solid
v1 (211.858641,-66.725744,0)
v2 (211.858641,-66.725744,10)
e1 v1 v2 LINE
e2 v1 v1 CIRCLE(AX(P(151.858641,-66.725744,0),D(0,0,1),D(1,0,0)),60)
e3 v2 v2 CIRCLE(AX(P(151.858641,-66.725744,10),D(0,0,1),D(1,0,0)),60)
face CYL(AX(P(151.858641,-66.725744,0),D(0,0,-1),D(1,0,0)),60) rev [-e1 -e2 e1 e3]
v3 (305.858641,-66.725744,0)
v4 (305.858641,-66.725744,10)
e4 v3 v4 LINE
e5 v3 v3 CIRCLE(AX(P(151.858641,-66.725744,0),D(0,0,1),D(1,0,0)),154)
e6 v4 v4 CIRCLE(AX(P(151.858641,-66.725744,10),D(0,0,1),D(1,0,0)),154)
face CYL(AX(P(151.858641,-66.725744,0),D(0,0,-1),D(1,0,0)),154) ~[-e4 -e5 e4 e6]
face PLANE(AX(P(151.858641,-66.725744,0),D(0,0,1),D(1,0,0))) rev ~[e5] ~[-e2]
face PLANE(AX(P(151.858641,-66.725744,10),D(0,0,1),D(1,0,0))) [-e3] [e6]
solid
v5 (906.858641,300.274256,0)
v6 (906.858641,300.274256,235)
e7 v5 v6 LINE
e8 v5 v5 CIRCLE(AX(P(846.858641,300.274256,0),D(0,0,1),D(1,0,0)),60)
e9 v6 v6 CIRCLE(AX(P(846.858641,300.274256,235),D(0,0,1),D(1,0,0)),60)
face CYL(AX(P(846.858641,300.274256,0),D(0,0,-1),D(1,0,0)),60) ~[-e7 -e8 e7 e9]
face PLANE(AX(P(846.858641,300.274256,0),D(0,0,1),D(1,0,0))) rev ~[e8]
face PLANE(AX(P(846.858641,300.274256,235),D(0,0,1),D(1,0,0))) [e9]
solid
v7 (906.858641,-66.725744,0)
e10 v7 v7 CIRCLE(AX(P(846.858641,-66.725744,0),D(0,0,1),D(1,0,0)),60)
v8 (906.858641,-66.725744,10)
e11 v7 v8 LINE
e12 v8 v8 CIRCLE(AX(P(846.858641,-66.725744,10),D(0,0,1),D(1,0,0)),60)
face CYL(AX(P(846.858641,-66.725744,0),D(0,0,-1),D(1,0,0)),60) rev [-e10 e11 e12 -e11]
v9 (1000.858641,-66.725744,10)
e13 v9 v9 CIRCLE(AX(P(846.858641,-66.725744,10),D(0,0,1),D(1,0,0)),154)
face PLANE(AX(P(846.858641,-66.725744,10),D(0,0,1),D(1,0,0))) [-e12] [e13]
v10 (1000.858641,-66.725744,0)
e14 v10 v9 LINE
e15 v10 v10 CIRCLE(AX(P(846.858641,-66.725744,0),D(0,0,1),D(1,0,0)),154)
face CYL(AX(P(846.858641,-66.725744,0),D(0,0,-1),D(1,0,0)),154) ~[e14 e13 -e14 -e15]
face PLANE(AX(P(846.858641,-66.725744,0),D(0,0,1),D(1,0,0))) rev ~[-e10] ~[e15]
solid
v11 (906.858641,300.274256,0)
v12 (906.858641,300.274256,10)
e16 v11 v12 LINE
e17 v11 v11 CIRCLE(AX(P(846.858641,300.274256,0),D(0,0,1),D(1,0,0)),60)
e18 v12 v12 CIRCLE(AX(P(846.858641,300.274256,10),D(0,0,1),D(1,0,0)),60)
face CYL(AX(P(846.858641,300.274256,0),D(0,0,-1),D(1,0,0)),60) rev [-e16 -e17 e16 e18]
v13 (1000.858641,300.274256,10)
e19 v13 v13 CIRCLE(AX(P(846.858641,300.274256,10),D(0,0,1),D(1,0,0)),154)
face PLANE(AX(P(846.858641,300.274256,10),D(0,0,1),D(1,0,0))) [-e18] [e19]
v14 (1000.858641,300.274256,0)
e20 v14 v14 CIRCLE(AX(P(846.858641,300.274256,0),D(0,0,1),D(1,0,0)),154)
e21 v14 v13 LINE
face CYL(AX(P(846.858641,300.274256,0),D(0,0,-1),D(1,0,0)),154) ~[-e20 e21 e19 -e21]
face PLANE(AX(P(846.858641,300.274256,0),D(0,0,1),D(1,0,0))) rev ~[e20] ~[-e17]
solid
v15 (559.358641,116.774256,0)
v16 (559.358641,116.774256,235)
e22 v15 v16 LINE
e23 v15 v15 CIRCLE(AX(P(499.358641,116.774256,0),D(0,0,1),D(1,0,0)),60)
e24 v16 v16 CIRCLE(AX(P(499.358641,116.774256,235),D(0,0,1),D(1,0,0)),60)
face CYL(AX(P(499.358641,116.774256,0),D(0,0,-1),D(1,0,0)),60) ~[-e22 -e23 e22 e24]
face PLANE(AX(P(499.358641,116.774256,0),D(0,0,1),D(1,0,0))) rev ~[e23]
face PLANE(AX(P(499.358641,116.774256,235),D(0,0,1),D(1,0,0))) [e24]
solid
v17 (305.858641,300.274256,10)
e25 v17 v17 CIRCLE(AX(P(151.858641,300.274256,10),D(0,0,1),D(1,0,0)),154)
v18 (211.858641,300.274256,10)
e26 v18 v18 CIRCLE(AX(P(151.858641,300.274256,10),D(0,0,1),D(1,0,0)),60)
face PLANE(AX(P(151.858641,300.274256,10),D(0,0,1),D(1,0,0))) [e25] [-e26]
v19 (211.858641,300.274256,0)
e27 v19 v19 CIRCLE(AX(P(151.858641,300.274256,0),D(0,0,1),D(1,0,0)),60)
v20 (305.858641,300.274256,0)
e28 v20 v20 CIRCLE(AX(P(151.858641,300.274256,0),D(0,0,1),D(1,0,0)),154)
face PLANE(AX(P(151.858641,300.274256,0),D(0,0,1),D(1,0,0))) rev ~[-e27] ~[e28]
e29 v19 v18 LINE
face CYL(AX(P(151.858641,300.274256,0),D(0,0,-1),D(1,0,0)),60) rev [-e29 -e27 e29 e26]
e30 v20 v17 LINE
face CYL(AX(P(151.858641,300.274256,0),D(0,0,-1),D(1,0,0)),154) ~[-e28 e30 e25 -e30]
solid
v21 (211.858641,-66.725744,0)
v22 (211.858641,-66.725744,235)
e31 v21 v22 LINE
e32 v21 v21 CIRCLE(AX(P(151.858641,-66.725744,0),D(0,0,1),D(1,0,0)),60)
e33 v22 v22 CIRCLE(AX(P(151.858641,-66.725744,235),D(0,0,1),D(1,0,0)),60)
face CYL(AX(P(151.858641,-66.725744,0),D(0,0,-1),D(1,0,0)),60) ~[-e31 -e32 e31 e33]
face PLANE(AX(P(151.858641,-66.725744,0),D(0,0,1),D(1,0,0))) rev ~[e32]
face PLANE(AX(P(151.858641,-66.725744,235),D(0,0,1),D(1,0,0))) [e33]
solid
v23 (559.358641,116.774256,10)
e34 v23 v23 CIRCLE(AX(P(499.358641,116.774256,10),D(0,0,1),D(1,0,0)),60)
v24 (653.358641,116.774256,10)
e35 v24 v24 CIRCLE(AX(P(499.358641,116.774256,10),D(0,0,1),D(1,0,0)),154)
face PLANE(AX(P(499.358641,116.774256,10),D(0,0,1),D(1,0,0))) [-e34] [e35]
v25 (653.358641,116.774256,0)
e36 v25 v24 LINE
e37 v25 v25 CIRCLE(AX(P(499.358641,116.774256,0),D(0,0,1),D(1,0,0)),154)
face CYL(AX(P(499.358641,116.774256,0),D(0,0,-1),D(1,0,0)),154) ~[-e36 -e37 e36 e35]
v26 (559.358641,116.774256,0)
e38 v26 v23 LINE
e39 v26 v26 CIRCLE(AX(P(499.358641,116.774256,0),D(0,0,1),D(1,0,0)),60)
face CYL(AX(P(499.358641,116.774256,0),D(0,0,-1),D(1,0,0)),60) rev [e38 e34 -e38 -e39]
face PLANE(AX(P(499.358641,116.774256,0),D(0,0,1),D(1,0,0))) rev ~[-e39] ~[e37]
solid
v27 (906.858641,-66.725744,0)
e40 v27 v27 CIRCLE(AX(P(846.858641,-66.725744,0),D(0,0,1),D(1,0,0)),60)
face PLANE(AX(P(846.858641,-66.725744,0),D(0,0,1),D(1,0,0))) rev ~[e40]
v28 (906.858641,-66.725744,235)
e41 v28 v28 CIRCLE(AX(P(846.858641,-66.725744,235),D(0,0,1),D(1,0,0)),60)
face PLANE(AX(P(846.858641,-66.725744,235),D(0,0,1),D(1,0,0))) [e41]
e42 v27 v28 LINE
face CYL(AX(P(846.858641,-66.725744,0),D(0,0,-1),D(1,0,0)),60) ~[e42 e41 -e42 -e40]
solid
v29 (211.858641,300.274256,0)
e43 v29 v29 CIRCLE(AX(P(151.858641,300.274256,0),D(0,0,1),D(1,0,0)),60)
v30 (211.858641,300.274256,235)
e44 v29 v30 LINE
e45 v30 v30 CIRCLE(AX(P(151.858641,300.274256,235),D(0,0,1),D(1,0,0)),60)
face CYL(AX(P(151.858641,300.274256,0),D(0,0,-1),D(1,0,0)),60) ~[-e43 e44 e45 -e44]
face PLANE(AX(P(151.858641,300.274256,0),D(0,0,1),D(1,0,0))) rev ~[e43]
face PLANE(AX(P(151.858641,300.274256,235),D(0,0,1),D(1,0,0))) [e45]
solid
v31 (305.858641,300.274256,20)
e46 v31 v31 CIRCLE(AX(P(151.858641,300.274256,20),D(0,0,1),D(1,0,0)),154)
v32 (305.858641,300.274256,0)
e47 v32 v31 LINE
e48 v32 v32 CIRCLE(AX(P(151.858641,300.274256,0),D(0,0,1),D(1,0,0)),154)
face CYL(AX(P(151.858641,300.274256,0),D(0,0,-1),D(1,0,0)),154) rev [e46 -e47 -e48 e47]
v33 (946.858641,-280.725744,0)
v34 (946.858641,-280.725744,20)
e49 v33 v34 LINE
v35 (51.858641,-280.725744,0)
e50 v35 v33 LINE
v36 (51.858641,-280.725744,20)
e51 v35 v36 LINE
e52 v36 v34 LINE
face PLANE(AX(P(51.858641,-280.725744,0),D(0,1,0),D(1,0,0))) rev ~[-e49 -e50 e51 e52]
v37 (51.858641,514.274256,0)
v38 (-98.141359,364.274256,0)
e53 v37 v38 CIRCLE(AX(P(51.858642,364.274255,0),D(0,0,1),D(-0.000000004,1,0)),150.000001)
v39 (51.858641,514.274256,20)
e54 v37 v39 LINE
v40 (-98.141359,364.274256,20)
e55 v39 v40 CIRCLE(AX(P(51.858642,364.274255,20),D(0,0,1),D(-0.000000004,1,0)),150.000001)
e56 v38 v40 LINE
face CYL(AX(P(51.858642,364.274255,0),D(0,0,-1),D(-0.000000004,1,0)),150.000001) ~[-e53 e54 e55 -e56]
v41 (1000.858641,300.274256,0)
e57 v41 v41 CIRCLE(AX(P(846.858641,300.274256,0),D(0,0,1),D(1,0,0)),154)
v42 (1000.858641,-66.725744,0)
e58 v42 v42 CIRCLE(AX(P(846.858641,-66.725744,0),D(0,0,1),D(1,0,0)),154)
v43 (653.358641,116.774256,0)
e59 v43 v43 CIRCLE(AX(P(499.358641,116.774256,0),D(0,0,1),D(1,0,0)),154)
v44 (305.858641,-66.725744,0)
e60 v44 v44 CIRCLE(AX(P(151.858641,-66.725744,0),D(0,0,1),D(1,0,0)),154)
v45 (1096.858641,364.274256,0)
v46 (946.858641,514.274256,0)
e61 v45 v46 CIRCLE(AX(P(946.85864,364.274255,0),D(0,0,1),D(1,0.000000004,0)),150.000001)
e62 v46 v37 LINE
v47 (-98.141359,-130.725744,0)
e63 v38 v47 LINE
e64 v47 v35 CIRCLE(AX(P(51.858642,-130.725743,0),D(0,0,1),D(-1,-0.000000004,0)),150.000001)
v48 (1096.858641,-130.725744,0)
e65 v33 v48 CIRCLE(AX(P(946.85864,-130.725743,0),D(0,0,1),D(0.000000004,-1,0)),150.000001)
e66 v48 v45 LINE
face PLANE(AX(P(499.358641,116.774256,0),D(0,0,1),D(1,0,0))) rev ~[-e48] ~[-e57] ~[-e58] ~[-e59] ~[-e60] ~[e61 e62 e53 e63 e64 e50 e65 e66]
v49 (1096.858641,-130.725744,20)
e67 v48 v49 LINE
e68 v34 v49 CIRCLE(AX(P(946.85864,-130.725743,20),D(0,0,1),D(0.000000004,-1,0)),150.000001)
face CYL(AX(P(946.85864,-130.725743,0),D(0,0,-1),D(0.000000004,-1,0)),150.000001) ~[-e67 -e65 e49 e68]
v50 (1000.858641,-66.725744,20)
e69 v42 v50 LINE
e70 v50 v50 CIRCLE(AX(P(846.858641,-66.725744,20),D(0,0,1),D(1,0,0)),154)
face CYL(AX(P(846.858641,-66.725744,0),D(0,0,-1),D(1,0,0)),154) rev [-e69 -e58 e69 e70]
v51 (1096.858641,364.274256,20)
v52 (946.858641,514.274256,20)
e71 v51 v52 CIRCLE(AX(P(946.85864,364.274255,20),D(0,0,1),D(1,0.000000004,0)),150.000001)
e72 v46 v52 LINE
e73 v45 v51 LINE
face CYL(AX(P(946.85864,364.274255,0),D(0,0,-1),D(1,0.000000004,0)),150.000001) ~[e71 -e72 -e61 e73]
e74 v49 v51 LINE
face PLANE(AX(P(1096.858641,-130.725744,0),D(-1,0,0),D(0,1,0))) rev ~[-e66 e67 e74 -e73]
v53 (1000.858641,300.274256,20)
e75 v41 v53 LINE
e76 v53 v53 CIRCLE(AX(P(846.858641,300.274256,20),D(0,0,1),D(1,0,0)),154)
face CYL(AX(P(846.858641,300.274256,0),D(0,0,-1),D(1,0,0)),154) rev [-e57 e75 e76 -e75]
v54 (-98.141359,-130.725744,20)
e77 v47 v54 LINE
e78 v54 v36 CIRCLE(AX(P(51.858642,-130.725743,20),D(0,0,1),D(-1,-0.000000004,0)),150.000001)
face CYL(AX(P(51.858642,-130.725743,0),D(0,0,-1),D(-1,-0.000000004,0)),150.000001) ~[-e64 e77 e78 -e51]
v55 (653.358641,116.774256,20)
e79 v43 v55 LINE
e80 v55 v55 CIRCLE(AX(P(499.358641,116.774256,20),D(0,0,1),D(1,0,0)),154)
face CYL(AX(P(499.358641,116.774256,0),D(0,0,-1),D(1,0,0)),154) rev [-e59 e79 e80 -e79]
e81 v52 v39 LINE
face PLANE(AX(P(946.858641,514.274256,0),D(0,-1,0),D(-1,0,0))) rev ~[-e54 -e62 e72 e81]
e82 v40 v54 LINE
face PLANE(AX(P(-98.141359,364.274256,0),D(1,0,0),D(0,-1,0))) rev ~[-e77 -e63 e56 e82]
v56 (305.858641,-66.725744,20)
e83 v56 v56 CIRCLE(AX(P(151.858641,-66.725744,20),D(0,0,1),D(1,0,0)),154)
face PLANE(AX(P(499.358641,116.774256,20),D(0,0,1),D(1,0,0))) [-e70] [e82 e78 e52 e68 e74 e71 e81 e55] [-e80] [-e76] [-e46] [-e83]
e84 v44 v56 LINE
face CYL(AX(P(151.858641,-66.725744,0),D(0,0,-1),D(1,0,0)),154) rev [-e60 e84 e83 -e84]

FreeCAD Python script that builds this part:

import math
import FreeCAD as App
import Part
import Sketcher
from FreeCAD import Vector
Q = App.Units.Quantity

doc = App.newDocument("Part")
body = doc.addObject("PartDesign::Body", "Body")

# Sketch on XY plane
sketch1 = doc.addObject("Sketcher::SketchObject", "Sketch")
body.addObject(sketch1)
sketch1.AttachmentSupport = (doc.XY_Plane, [""])
sketch1.MapMode = "FlatFace"
sketch1.addGeometry([
    Part.LineSegment(Vector(947, 514, 0), Vector(52, 514, 0)),  # 0
    Part.ArcOfCircle(Part.Circle(Vector(52, 364, 0), Vector(0, 0, 1), 150), math.radians(90), math.radians(180)),  # 1
    Part.LineSegment(Vector(-98, 364, 0), Vector(-98, -131, 0)),  # 2
    Part.ArcOfCircle(Part.Circle(Vector(52, -131, 0), Vector(0, 0, 1), 150), math.radians(-180), math.radians(-90)),  # 3
    Part.LineSegment(Vector(52, -281, 0), Vector(947, -281, 0)),  # 4
    Part.ArcOfCircle(Part.Circle(Vector(947, -131, 0), Vector(0, 0, 1), 150), math.radians(-90), math.radians(0)),  # 5
    Part.LineSegment(Vector(1097, -131, 0), Vector(1097, 364, 0)),  # 6
    Part.ArcOfCircle(Part.Circle(Vector(947, 364, 0), Vector(0, 0, 1), 150), math.radians(0), math.radians(90)),  # 7
    Part.Circle(Vector(152, -67, 0), Vector(0, 0, 1), 154),  # 8
    Part.Circle(Vector(847, -67, 0), Vector(0, 0, 1), 154),  # 9
    Part.Circle(Vector(499, 117, 0), Vector(0, 0, 1), 154),  # 10
    Part.Circle(Vector(152, 300, 0), Vector(0, 0, 1), 154),  # 11
    Part.Circle(Vector(847, 300, 0), Vector(0, 0, 1), 154),  # 12
], False)
sketch1.addConstraint([
    Sketcher.Constraint("Tangent", 0, 2, 1, 1),
    Sketcher.Constraint("Tangent", 1, 2, 2, 1),
    Sketcher.Constraint("Tangent", 2, 2, 3, 1),
    Sketcher.Constraint("Tangent", 3, 2, 4, 1),
    Sketcher.Constraint("Tangent", 4, 2, 5, 1),
    Sketcher.Constraint("Tangent", 5, 2, 6, 1),
    Sketcher.Constraint("Tangent", 6, 2, 7, 1),
    Sketcher.Constraint("Tangent", 7, 2, 0, 1),
    Sketcher.Constraint("Horizontal", 0),
    Sketcher.Constraint("Vertical", 2),
    Sketcher.Constraint("Horizontal", 4),
    Sketcher.Constraint("Vertical", 6),
    Sketcher.Constraint("Equal", 1, 3),
    Sketcher.Constraint("Equal", 3, 5),
    Sketcher.Constraint("Equal", 5, 7),
    Sketcher.Constraint("Equal", 8, 9),
    Sketcher.Constraint("Equal", 9, 10),
    Sketcher.Constraint("Equal", 10, 11),
    Sketcher.Constraint("Equal", 11, 12),
    Sketcher.Constraint("Horizontal", 8, 3, 9, 3),
    Sketcher.Constraint("Horizontal", 11, 3, 12, 3),
    Sketcher.Constraint("Vertical", 8, 3, 11, 3),
    Sketcher.Constraint("Vertical", 9, 3, 12, 3),
    Sketcher.Constraint("Diameter", 8, Q("308 mm")),
    Sketcher.Constraint("Radius", 1, Q("150.000001 mm")),
    Sketcher.Constraint("DistanceX", 0, 2, 0, 1, Q("895 mm")),
    Sketcher.Constraint("DistanceY", 2, 2, 2, 1, Q("495 mm")),
    Sketcher.Constraint("DistanceX", 3, 3, 8, 3, Q("99.999999 mm")),
    Sketcher.Constraint("DistanceY", 3, 3, 8, 3, Q("63.999999 mm")),
    Sketcher.Constraint("DistanceX", 9, 3, 5, 3, Q("99.999999 mm")),
    Sketcher.Constraint("DistanceY", 11, 3, 1, 3, Q("63.999999 mm")),
    Sketcher.Constraint("DistanceX", 8, 3, 10, 3, Q("347.5 mm")),
    Sketcher.Constraint("DistanceY", 8, 3, 10, 3, Q("183.5 mm")),
    Sketcher.Constraint("DistanceX", -1, 1, 1, 3, Q("51.858642 mm")),
    Sketcher.Constraint("DistanceY", -1, 1, 1, 3, Q("364.274255 mm")),
])
pad1 = doc.addObject("PartDesign::Pad", "Pad")
body.addObject(pad1)
pad1.Profile = sketch1
pad1.Length = 20
body2 = doc.addObject("PartDesign::Body", "Body001")
body2.AllowCompound = True

# Sketch on XY plane
sketch2 = doc.addObject("Sketcher::SketchObject", "Sketch001")
body2.addObject(sketch2)
sketch2.AttachmentSupport = (doc.getObject("XY_Plane001"), [""])
sketch2.MapMode = "FlatFace"
sketch2.addGeometry([
    Part.Circle(Vector(847, -67, 0), Vector(0, 0, 1), 60),  # 0
    Part.Circle(Vector(847, 300, 0), Vector(0, 0, 1), 60),  # 1
    Part.Circle(Vector(499, 117, 0), Vector(0, 0, 1), 60),  # 2
    Part.Circle(Vector(152, -67, 0), Vector(0, 0, 1), 60),  # 3
    Part.Circle(Vector(152, 300, 0), Vector(0, 0, 1), 60),  # 4
], False)
sketch2.addConstraint([
    Sketcher.Constraint("Equal", 0, 1),
    Sketcher.Constraint("Equal", 1, 2),
    Sketcher.Constraint("Equal", 2, 3),
    Sketcher.Constraint("Equal", 3, 4),
    Sketcher.Constraint("Horizontal", 0, 3, 3, 3),
    Sketcher.Constraint("Horizontal", 1, 3, 4, 3),
    Sketcher.Constraint("Vertical", 0, 3, 1, 3),
    Sketcher.Constraint("Vertical", 3, 3, 4, 3),
    Sketcher.Constraint("Diameter", 0, Q("120 mm")),
    Sketcher.Constraint("DistanceY", 0, 3, 1, 3, Q("367 mm")),
    Sketcher.Constraint("DistanceX", 3, 3, 0, 3, Q("695 mm")),
    Sketcher.Constraint("DistanceX", 2, 3, 0, 3, Q("347.5 mm")),
    Sketcher.Constraint("DistanceY", 0, 3, 2, 3, Q("183.5 mm")),
    Sketcher.Constraint("DistanceX", -1, 1, 0, 3, Q("846.858641 mm")),
    Sketcher.Constraint("DistanceY", 0, 3, -1, 1, Q("66.725744 mm")),
])
pad2 = doc.addObject("PartDesign::Pad", "Pad001")
body2.addObject(pad2)
pad2.Profile = sketch2
pad2.Length = 235
body3 = doc.addObject("PartDesign::Body", "Body002")
body3.AllowCompound = True

# Sketch on XY plane
sketch3 = doc.addObject("Sketcher::SketchObject", "Sketch002")
body3.addObject(sketch3)
sketch3.AttachmentSupport = (doc.getObject("XY_Plane002"), [""])
sketch3.MapMode = "FlatFace"
sketch3.addGeometry([
    Part.Circle(Vector(152, 300, 0), Vector(0, 0, 1), 154),  # 0
    Part.Circle(Vector(152, 300, 0), Vector(0, 0, 1), 60),  # 1
    Part.Circle(Vector(152, -67, 0), Vector(0, 0, 1), 154),  # 2
    Part.Circle(Vector(152, -67, 0), Vector(0, 0, 1), 60),  # 3
    Part.Circle(Vector(499, 117, 0), Vector(0, 0, 1), 154),  # 4
    Part.Circle(Vector(499, 117, 0), Vector(0, 0, 1), 60),  # 5
    Part.Circle(Vector(847, 300, 0), Vector(0, 0, 1), 154),  # 6
    Part.Circle(Vector(847, 300, 0), Vector(0, 0, 1), 60),  # 7
    Part.Circle(Vector(847, -67, 0), Vector(0, 0, 1), 154),  # 8
    Part.Circle(Vector(847, -67, 0), Vector(0, 0, 1), 60),  # 9
], False)
sketch3.addConstraint([
    Sketcher.Constraint("Coincident", 1, 3, 0, 3),
    Sketcher.Constraint("Coincident", 3, 3, 2, 3),
    Sketcher.Constraint("Coincident", 5, 3, 4, 3),
    Sketcher.Constraint("Coincident", 7, 3, 6, 3),
    Sketcher.Constraint("Coincident", 9, 3, 8, 3),
    Sketcher.Constraint("Equal", 0, 2),
    Sketcher.Constraint("Equal", 1, 3),
    Sketcher.Constraint("Equal", 2, 4),
    Sketcher.Constraint("Equal", 3, 5),
    Sketcher.Constraint("Equal", 4, 6),
    Sketcher.Constraint("Equal", 5, 7),
    Sketcher.Constraint("Equal", 6, 8),
    Sketcher.Constraint("Equal", 7, 9),
    Sketcher.Constraint("Horizontal", 1, 3, 6, 3),
    Sketcher.Constraint("Horizontal", 3, 3, 8, 3),
    Sketcher.Constraint("Vertical", 1, 3, 2, 3),
    Sketcher.Constraint("Vertical", 7, 3, 8, 3),
    Sketcher.Constraint("Diameter", 0, Q("308 mm")),
    Sketcher.Constraint("Diameter", 1, Q("120 mm")),
    Sketcher.Constraint("DistanceY", 2, 3, 0, 3, Q("367 mm")),
    Sketcher.Constraint("DistanceX", 0, 3, 6, 3, Q("695 mm")),
    Sketcher.Constraint("DistanceX", 0, 3, 4, 3, Q("347.5 mm")),
    Sketcher.Constraint("DistanceY", 4, 3, 0, 3, Q("183.5 mm")),
    Sketcher.Constraint("DistanceX", -1, 1, 0, 3, Q("151.858641 mm")),
    Sketcher.Constraint("DistanceY", -1, 1, 0, 3, Q("300.274256 mm")),
])
pad3 = doc.addObject("PartDesign::Pad", "Pad002")
body3.addObject(pad3)
pad3.Profile = sketch3
pad3.Length = 10

doc.recompute()
